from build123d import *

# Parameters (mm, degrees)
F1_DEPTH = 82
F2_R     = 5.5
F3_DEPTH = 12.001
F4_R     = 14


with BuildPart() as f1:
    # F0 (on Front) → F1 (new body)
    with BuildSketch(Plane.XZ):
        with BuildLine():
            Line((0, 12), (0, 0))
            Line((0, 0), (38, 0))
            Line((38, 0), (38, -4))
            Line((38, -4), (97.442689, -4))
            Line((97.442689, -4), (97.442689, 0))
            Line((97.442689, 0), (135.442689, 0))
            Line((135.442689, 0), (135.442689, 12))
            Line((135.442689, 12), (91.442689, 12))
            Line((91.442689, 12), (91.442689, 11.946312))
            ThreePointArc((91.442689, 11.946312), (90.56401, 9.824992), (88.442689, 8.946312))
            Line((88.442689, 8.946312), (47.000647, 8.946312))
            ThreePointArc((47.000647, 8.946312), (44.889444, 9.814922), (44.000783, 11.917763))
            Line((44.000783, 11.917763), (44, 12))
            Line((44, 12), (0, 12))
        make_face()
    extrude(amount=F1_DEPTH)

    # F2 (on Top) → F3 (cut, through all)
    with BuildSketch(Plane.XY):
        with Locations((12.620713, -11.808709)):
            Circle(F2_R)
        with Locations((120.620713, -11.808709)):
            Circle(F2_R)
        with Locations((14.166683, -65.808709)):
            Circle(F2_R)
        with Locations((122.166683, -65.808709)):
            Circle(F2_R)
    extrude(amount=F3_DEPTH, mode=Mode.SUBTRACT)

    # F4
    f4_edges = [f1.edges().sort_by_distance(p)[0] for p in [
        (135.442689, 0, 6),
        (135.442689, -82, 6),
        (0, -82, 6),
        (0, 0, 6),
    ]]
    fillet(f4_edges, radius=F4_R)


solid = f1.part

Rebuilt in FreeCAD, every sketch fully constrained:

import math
import FreeCAD as App
import Part
import Sketcher
from FreeCAD import Vector


def edges_at(feature, points):
    """Names of the edges that pass closest to the given points."""
    edges = feature.Shape.Edges
    near = lambda p: min(range(len(edges)), key=lambda i: edges[i].distToShape(Part.Vertex(*p))[0])
    return sorted({f"Edge{near(p) + 1}" for p in points})

doc = App.newDocument("Part")
body = doc.addObject("PartDesign::Body", "Body")

sketch1 = body.newObject("Sketcher::SketchObject", "Sketch")
sketch1.AttachmentSupport = (doc.getObject("XZ_Plane"), [""])
sketch1.MapMode = "FlatFace"
sketch1.addGeometry(Part.LineSegment(Vector(0, 12, 0), Vector(0, 0, 0)), False)
sketch1.addGeometry(Part.LineSegment(Vector(0, 0, 0), Vector(38, 0, 0)), False)
sketch1.addGeometry(Part.LineSegment(Vector(38, 0, 0), Vector(38, -4, 0)), False)
sketch1.addGeometry(Part.LineSegment(Vector(38, -4, 0), Vector(97.44, -4, 0)), False)
sketch1.addGeometry(Part.LineSegment(Vector(97.44, -4, 0), Vector(97.44, 0, 0)), False)
sketch1.addGeometry(Part.LineSegment(Vector(97.44, 0, 0), Vector(135.44, 0, 0)), False)
sketch1.addGeometry(Part.LineSegment(Vector(135.44, 0, 0), Vector(135.44, 12, 0)), False)
sketch1.addGeometry(Part.LineSegment(Vector(135.44, 12, 0), Vector(91.44, 12, 0)), False)
sketch1.addGeometry(Part.LineSegment(Vector(91.44, 12, 0), Vector(91.44, 11.95, 0)), False)
sketch1.addGeometry(Part.ArcOfCircle(Part.Circle(Vector(88.44, 11.95, 0), Vector(0, 0, 1), 3), math.radians(-90), math.radians(0)), False)
sketch1.addGeometry(Part.LineSegment(Vector(88.44, 8.95, 0), Vector(47, 8.95, 0)), False)
sketch1.addGeometry(Part.ArcOfCircle(Part.Circle(Vector(47, 11.95, 0), Vector(0, 0, 1), 3), math.radians(-179), math.radians(-90)), False)
sketch1.addGeometry(Part.LineSegment(Vector(44, 11.92, 0), Vector(44, 12, 0)), False)
sketch1.addGeometry(Part.LineSegment(Vector(44, 12, 0), Vector(0, 12, 0)), False)
sketch1.addConstraint(Sketcher.Constraint("Coincident", 0, 2, 1, 1))
sketch1.addConstraint(Sketcher.Constraint("Coincident", 1, 2, 2, 1))
sketch1.addConstraint(Sketcher.Constraint("Coincident", 2, 2, 3, 1))
sketch1.addConstraint(Sketcher.Constraint("Coincident", 3, 2, 4, 1))
sketch1.addConstraint(Sketcher.Constraint("Coincident", 4, 2, 5, 1))
sketch1.addConstraint(Sketcher.Constraint("Coincident", 5, 2, 6, 1))
sketch1.addConstraint(Sketcher.Constraint("Coincident", 6, 2, 7, 1))
sketch1.addConstraint(Sketcher.Constraint("Coincident", 7, 2, 8, 1))
sketch1.addConstraint(Sketcher.Constraint("Tangent", 8, 2, 9, 2))
sketch1.addConstraint(Sketcher.Constraint("Tangent", 9, 1, 10, 1))
sketch1.addConstraint(Sketcher.Constraint("Tangent", 10, 2, 11, 2))
sketch1.addConstraint(Sketcher.Constraint("Coincident", 11, 1, 12, 1))
sketch1.addConstraint(Sketcher.Constraint("Coincident", 12, 2, 13, 1))
sketch1.addConstraint(Sketcher.Constraint("Coincident", 13, 2, 0, 1))
sketch1.addConstraint(Sketcher.Constraint("Vertical", 0))
sketch1.addConstraint(Sketcher.Constraint("Horizontal", 1))
sketch1.addConstraint(Sketcher.Constraint("Vertical", 2))
sketch1.addConstraint(Sketcher.Constraint("Horizontal", 3))
sketch1.addConstraint(Sketcher.Constraint("Vertical", 4))
sketch1.addConstraint(Sketcher.Constraint("Horizontal", 5))
sketch1.addConstraint(Sketcher.Constraint("Vertical", 6))
sketch1.addConstraint(Sketcher.Constraint("Horizontal", 7))
sketch1.addConstraint(Sketcher.Constraint("Vertical", 8))
sketch1.addConstraint(Sketcher.Constraint("Horizontal", 10))
sketch1.addConstraint(Sketcher.Constraint("Horizontal", 13))
sketch1.addConstraint(Sketcher.Constraint("Coincident", 0, 2, -1, 1))
sketch1.addConstraint(Sketcher.Constraint("Equal", 9, 11))
sketch1.addConstraint(Sketcher.Constraint("PointOnObject", 4, 2, -1))
sketch1.addConstraint(Sketcher.Constraint("Horizontal", 7, 2, 12, 2))
sketch1.addConstraint(Sketcher.Constraint("Equal", 1, 5))
sketch1.addConstraint(Sketcher.Constraint("Equal", 7, 13))
sketch1.addConstraint(Sketcher.Constraint("Radius", 9, 2.999999))
sketch1.addConstraint(Sketcher.Constraint("DistanceX", 1, 1, 1, 2, 38.0))
sketch1.addConstraint(Sketcher.Constraint("DistanceX", 7, 2, 7, 1, 44.0))
sketch1.addConstraint(Sketcher.Constraint("DistanceY", 0, 2, 0, 1, 12.0))
sketch1.addConstraint(Sketcher.Constraint("DistanceY", 2, 2, 2, 1, 4.0))
sketch1.addConstraint(Sketcher.Constraint("DistanceX", 3, 1, 3, 2, 59.442689))
sketch1.addConstraint(Sketcher.Constraint("Distance", 12, 0.082241))
sketch1.addConstraint(Sketcher.Constraint("DistanceX", 10, 2, 10, 1, 41.442042))
sketch1.addConstraint(Sketcher.Constraint("DistanceY", 8, 2, 8, 1, 0.053688))
pad1 = body.newObject("PartDesign::Pad", "Pad")
pad1.Profile = sketch1
pad1.Length = 82

sketch2 = body.newObject("Sketcher::SketchObject", "Sketch001")
sketch2.AttachmentSupport = (doc.getObject("XY_Plane"), [""])
sketch2.MapMode = "FlatFace"
sketch2.addGeometry(Part.Circle(Vector(13, -12, 0), Vector(0, 0, 1), 6), False)
sketch2.addGeometry(Part.Circle(Vector(121, -12, 0), Vector(0, 0, 1), 6), False)
sketch2.addGeometry(Part.Circle(Vector(14, -66, 0), Vector(0, 0, 1), 6), False)
sketch2.addGeometry(Part.Circle(Vector(122, -66, 0), Vector(0, 0, 1), 6), False)
sketch2.addConstraint(Sketcher.Constraint("Equal", 0, 1))
sketch2.addConstraint(Sketcher.Constraint("Equal", 1, 2))
sketch2.addConstraint(Sketcher.Constraint("Equal", 2, 3))
sketch2.addConstraint(Sketcher.Constraint("Horizontal", 0, 3, 1, 3))
sketch2.addConstraint(Sketcher.Constraint("Horizontal", 2, 3, 3, 3))
sketch2.addConstraint(Sketcher.Constraint("Diameter", 0, 11.0))
sketch2.addConstraint(Sketcher.Constraint("DistanceX", 0, 3, 1, 3, 108.0))
sketch2.addConstraint(Sketcher.Constraint("DistanceY", 2, 3, 0, 3, 54.0))
sketch2.addConstraint(Sketcher.Constraint("DistanceX", 2, 3, 3, 3, 108.0))
sketch2.addConstraint(Sketcher.Constraint("DistanceY", 0, 3, -1, 1, 11.808709))
sketch2.addConstraint(Sketcher.Constraint("DistanceX", 0, 3, 2, 3, 1.54597))
sketch2.addConstraint(Sketcher.Constraint("DistanceX", -1, 1, 0, 3, 12.620713))
pocket1 = body.newObject("PartDesign::Pocket", "Pocket")
pocket1.Profile = sketch2
pocket1.Type = "ThroughAll"
pocket1.Reversed = True
doc.recompute()

fillet = body.newObject("PartDesign::Fillet", "Fillet")
fillet.Base = (pocket1, edges_at(pocket1, [
    (135.443, 0, 6),
    (135.443, -82, 6),
    (0, -82, 6),
    (0, 0, 6),
]))
fillet.Radius = 14

doc.recompute()
